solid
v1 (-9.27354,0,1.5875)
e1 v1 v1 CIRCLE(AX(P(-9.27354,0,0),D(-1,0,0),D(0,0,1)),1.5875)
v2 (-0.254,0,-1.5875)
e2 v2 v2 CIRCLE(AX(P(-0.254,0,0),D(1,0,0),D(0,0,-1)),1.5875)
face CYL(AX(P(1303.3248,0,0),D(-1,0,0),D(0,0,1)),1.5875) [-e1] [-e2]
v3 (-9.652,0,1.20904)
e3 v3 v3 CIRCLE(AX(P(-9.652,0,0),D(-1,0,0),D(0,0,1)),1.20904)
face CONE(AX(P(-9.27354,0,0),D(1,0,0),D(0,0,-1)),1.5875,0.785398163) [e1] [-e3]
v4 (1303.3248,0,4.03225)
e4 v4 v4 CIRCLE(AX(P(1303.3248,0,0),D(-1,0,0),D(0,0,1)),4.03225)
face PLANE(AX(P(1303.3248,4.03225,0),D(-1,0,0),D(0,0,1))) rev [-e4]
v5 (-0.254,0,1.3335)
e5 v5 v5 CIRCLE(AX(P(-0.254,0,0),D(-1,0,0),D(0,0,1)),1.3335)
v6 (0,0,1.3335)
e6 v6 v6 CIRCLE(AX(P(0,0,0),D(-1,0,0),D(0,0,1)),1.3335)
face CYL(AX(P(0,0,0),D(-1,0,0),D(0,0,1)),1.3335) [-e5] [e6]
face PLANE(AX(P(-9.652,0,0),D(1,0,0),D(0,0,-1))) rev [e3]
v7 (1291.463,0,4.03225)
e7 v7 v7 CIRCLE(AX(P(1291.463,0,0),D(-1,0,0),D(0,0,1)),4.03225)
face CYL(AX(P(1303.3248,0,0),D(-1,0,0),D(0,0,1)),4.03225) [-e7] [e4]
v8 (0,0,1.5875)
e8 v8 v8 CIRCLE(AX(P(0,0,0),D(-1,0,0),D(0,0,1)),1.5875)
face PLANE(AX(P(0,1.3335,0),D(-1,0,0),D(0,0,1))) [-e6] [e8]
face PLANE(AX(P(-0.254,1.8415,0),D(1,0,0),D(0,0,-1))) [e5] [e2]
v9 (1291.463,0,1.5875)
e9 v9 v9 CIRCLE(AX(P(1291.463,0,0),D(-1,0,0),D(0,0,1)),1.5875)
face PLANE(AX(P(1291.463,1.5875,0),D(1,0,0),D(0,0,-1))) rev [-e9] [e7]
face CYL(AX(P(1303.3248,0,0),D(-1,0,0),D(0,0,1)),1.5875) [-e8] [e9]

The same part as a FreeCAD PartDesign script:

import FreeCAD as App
import Part
import Sketcher

V = App.Vector
Q = App.Units.Quantity


def add_polygon(sketch, points):
    """Adds a closed chain of lines whose ends are joined by coincident constraints."""
    first, n = sketch.GeometryCount, len(points)
    for a, b in zip(points, points[1:] + points[:1]):
        sketch.addGeometry(Part.LineSegment(App.Vector(*a, 0), App.Vector(*b, 0)), False)
    for i in range(n):
        sketch.addConstraint(Sketcher.Constraint("Coincident", first + i, 2, first + (i + 1) % n, 1))

doc = App.newDocument("Part")
body = doc.addObject("PartDesign::Body", "Body")

# Sketch on XY plane
sketch1 = body.newObject("Sketcher::SketchObject", "Sketch")
sketch1.AttachmentSupport = (doc.getObject("XY_Plane"), [""])
sketch1.MapMode = "FlatFace"
add_polygon(sketch1, [(0, 1.6), (0, 0), (1303.3, 0), (1303.3, 4), (1291.5, 4), (1291.5, 1.6)])  # lines 0-5
sketch1.addConstraint([
    Sketcher.Constraint("Vertical", 0),
    Sketcher.Constraint("Horizontal", 1),
    Sketcher.Constraint("Vertical", 2),
    Sketcher.Constraint("Horizontal", 3),
    Sketcher.Constraint("Vertical", 4),
    Sketcher.Constraint("Horizontal", 5),
    Sketcher.Constraint("Coincident", 0, 2, -1, 1),
    Sketcher.Constraint("DistanceX", 1, 1, 1, 2, Q("51.312 in")),
    Sketcher.Constraint("DistanceX", 3, 2, 3, 1, Q("0.467 in")),
    Sketcher.Constraint("DistanceY", 0, 2, 0, 1, Q("0.0625 in")),
    Sketcher.Constraint("DistanceY", 2, 1, 2, 2, 4.03225),
])
revolution = body.newObject("PartDesign::Revolution", "Revolution")
revolution.Profile = sketch1
revolution.ReferenceAxis = (sketch1, ["H_Axis"])
revolution.Angle = 360

# Sketch on XY plane
sketch2 = body.newObject("Sketcher::SketchObject", "Sketch001")
sketch2.AttachmentSupport = (doc.getObject("XY_Plane"), [""])
sketch2.MapMode = "FlatFace"
add_polygon(sketch2, [(-9.7, 1.2), (-9.7, 0), (0, 0), (0, 1.6), (-9.3, 1.6)])  # lines 0-4
sketch2.addConstraint([
    Sketcher.Constraint("Vertical", 0),
    Sketcher.Constraint("Horizontal", 1),
    Sketcher.Constraint("Vertical", 2),
    Sketcher.Constraint("Horizontal", 3),
    Sketcher.Constraint("Coincident", 1, 2, -1, 1),
    Sketcher.Constraint("Angle", 4, Q("-135 deg")),
    Sketcher.Constraint("DistanceX", 1, 1, 1, 2, Q("0.38 in")),
    Sketcher.Constraint("DistanceY", 2, 1, 2, 2, Q("0.0625 in")),
    Sketcher.Constraint("DistanceX", 3, 2, 3, 1, Q("0.3651 in")),
])
revolution2 = body.newObject("PartDesign::Revolution", "Revolution001")
revolution2.Profile = sketch2
revolution2.ReferenceAxis = (sketch2, ["H_Axis"])
revolution2.Angle = 360

# Sketch on XY plane
sketch3 = body.newObject("Sketcher::SketchObject", "Sketch002")
sketch3.AttachmentSupport = (doc.getObject("XY_Plane"), [""])
sketch3.MapMode = "FlatFace"
add_polygon(sketch3, [(-0.25, 1.84), (-0.25, 1.33), (0, 1.33), (0, 1.84)])  # lines 0-3
sketch3.addConstraint([
    Sketcher.Constraint("Vertical", 0),
    Sketcher.Constraint("Horizontal", 1),
    Sketcher.Constraint("Vertical", 2),
    Sketcher.Constraint("Horizontal", 3),
    Sketcher.Constraint("PointOnObject", 1, 2, -2),
    Sketcher.Constraint("DistanceX", 1, 1, 1, 2, Q("0.01 in")),
    Sketcher.Constraint("DistanceY", 0, 2, 0, 1, Q("0.02 in")),
    Sketcher.Constraint("DistanceY", -1, 1, 0, 2, Q("0.0525 in")),
])
groove = body.newObject("PartDesign::Groove", "Groove")
groove.Profile = sketch3
groove.ReferenceAxis = (sketch3, ["H_Axis"])
groove.Angle = 360

doc.recompute()
